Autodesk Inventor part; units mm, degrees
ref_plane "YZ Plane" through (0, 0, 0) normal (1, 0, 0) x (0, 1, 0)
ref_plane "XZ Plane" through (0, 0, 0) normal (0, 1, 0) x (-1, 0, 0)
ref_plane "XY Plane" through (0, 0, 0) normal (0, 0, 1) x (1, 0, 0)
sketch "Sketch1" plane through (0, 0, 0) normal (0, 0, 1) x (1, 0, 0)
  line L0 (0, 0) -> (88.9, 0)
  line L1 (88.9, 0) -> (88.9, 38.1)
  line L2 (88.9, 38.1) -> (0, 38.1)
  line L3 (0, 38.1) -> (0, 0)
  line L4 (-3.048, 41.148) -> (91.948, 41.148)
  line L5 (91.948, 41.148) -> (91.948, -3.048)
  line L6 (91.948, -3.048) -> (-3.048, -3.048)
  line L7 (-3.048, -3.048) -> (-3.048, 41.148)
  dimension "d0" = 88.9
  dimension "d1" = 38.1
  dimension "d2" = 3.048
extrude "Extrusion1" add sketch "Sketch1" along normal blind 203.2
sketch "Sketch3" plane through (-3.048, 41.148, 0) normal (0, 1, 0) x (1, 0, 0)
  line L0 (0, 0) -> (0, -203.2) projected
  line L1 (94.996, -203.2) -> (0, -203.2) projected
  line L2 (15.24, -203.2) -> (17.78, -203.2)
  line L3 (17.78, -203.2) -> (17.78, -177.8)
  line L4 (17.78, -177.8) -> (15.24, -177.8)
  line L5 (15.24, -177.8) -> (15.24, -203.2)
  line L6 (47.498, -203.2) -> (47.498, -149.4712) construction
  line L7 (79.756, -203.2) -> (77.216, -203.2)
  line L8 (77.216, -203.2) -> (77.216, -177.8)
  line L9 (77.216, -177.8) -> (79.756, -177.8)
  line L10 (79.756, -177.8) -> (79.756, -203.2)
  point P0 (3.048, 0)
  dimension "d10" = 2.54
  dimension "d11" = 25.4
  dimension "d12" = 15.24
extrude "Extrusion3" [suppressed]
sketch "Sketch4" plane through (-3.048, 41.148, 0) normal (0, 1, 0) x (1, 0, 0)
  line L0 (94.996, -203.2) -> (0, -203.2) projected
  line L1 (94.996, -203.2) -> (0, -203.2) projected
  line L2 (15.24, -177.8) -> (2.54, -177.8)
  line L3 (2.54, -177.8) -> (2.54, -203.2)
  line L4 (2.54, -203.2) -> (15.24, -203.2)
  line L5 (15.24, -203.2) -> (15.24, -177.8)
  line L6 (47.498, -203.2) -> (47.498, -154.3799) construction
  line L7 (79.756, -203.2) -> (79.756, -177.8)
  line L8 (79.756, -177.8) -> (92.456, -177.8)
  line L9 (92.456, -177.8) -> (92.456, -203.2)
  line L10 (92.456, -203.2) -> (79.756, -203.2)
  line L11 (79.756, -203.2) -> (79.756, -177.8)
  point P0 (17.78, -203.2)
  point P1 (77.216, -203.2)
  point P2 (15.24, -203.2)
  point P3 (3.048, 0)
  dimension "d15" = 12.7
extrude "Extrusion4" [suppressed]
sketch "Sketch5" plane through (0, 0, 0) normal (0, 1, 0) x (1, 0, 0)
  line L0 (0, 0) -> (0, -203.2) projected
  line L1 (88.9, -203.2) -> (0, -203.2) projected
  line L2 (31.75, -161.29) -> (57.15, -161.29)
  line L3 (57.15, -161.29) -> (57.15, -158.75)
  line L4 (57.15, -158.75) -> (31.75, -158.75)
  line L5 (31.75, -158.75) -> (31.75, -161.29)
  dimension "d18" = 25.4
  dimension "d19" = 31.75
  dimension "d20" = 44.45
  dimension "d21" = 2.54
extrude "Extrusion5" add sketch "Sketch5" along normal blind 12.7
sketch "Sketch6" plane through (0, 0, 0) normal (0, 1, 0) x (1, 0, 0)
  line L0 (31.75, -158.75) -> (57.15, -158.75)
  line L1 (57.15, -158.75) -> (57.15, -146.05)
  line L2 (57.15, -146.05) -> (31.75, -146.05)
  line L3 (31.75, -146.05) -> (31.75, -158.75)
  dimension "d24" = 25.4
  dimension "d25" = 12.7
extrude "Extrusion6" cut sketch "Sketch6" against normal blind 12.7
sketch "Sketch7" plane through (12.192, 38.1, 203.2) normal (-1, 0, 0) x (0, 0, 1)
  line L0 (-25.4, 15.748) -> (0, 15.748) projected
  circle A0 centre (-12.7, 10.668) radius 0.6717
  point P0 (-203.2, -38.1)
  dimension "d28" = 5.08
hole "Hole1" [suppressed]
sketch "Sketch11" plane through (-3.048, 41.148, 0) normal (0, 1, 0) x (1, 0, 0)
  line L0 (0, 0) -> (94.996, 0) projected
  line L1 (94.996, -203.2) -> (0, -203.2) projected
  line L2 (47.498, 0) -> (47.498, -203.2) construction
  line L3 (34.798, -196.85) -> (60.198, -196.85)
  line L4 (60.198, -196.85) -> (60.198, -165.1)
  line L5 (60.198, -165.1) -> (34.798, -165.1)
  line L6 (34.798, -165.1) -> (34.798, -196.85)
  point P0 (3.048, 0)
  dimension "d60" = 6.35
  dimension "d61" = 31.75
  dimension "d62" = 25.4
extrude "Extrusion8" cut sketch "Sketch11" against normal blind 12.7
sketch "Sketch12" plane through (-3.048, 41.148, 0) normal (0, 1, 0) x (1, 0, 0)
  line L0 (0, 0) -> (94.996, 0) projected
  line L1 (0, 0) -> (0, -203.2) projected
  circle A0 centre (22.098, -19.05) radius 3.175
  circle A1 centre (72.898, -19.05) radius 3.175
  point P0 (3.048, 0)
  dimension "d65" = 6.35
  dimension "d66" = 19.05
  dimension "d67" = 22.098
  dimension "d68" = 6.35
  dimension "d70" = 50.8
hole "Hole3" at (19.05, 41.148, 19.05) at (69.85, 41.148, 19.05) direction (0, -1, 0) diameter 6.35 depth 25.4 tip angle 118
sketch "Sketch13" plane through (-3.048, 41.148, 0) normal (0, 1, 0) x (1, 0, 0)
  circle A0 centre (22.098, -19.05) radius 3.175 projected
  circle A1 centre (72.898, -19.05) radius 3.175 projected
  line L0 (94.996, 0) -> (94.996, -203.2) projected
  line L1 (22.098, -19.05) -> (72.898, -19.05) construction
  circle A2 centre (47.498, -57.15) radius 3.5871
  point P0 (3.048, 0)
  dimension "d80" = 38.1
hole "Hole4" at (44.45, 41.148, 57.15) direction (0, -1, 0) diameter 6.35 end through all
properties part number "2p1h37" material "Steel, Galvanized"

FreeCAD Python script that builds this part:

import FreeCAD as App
import Part
import Sketcher

V = App.Vector
Q = App.Units.Quantity


def add_polygon(sketch, points):
    """Adds a closed chain of lines whose ends are joined by coincident constraints."""
    first, n = sketch.GeometryCount, len(points)
    for a, b in zip(points, points[1:] + points[:1]):
        sketch.addGeometry(Part.LineSegment(App.Vector(*a, 0), App.Vector(*b, 0)), False)
    for i in range(n):
        sketch.addConstraint(Sketcher.Constraint("Coincident", first + i, 2, first + (i + 1) % n, 1))

doc = App.newDocument("Part")
body = doc.addObject("PartDesign::Body", "Body")

sketch1 = body.newObject("Sketcher::SketchObject", "Sketch")
sketch1.AttachmentSupport = (doc.getObject("XY_Plane"), [""])
sketch1.MapMode = "FlatFace"
add_polygon(sketch1, [(92, 41), (-3, 41), (-3, -3), (92, -3)])
add_polygon(sketch1, [(89, 0), (0, 0), (0, 38), (89, 38)])
sketch1.addConstraint([
    Sketcher.Constraint("Horizontal", 0),
    Sketcher.Constraint("Vertical", 1),
    Sketcher.Constraint("Horizontal", 2),
    Sketcher.Constraint("Vertical", 3),
    Sketcher.Constraint("Horizontal", 4),
    Sketcher.Constraint("Vertical", 5),
    Sketcher.Constraint("Horizontal", 6),
    Sketcher.Constraint("Vertical", 7),
    Sketcher.Constraint("Coincident", 4, 2, -1, 1),
    Sketcher.Constraint("DistanceX", 4, 2, 4, 1, Q("3.5 in")),
    Sketcher.Constraint("DistanceY", 5, 1, 5, 2, Q("1.5 in")),
    Sketcher.Constraint("DistanceX", 0, 2, -1, 1, Q("0.12 in")),
    Sketcher.Constraint("DistanceY", 1, 2, -1, 1, Q("0.12 in")),
    Sketcher.Constraint("DistanceY", 5, 2, 0, 2, Q("0.12 in")),
    Sketcher.Constraint("DistanceX", 6, 2, 3, 2, Q("0.12 in")),
])
pad1 = body.newObject("PartDesign::Pad", "Pad")
pad1.Profile = sketch1
pad1.Length = Q("8 in")

sketch2 = body.newObject("Sketcher::SketchObject", "Sketch001")
sketch2.AttachmentSupport = (doc.getObject("XZ_Plane"), [""])
sketch2.MapMode = "FlatFace"
add_polygon(sketch2, [(31.8, 158.8), (31.8, 161.3), (57.1, 161.3), (57.1, 158.8)])
sketch2.addConstraint([
    Sketcher.Constraint("Vertical", 0),
    Sketcher.Constraint("Horizontal", 1),
    Sketcher.Constraint("Vertical", 2),
    Sketcher.Constraint("Horizontal", 3),
    Sketcher.Constraint("DistanceX", 1, 1, 1, 2, Q("1 in")),
    Sketcher.Constraint("DistanceY", 0, 1, 0, 2, Q("0.1 in")),
    Sketcher.Constraint("DistanceX", -1, 1, 0, 2, Q("1.25 in")),
    Sketcher.Constraint("DistanceY", -1, 1, 0, 2, Q("6.35 in")),
])
pad2 = body.newObject("PartDesign::Pad", "Pad001")
pad2.Profile = sketch2
pad2.Length = Q("0.5 in")
pad2.Reversed = True

sketch3 = body.newObject("Sketcher::SketchObject", "Sketch002")
sketch3.AttachmentSupport = (doc.getObject("XZ_Plane"), [""])
sketch3.MapMode = "FlatFace"
add_polygon(sketch3, [(32, 146), (32, 159), (57, 159), (57, 146)])
sketch3.addConstraint([
    Sketcher.Constraint("Vertical", 0),
    Sketcher.Constraint("Horizontal", 1),
    Sketcher.Constraint("Vertical", 2),
    Sketcher.Constraint("Horizontal", 3),
    Sketcher.Constraint("DistanceX", 1, 1, 1, 2, Q("1 in")),
    Sketcher.Constraint("DistanceY", 0, 1, 0, 2, Q("0.5 in")),
    Sketcher.Constraint("DistanceX", -1, 1, 0, 2, Q("1.25 in")),
    Sketcher.Constraint("DistanceY", -1, 1, 0, 2, Q("6.25 in")),
])
pocket1 = body.newObject("PartDesign::Pocket", "Pocket")
pocket1.Profile = sketch3
pocket1.Length = Q("0.5 in")
pocket1.Reversed = True

sketch4 = body.newObject("Sketcher::SketchObject", "Sketch003")
sketch4.AttachmentSupport = (doc.getObject("XZ_Plane"), [""])
sketch4.MapMode = "FlatFace"
sketch4.AttachmentOffset = App.Placement(V(0, 0, -1.62 * 25.4), App.Rotation())
add_polygon(sketch4, [(32, 165), (32, 197), (57, 197), (57, 165)])
sketch4.addConstraint([
    Sketcher.Constraint("Vertical", 0),
    Sketcher.Constraint("Horizontal", 1),
    Sketcher.Constraint("Vertical", 2),
    Sketcher.Constraint("Horizontal", 3),
    Sketcher.Constraint("DistanceX", 1, 1, 1, 2, Q("1 in")),
    Sketcher.Constraint("DistanceY", 0, 1, 0, 2, Q("1.25 in")),
    Sketcher.Constraint("DistanceX", -1, 1, 0, 2, Q("1.25 in")),
    Sketcher.Constraint("DistanceY", -1, 1, 2, 2, Q("6.5 in")),
])
pocket2 = body.newObject("PartDesign::Pocket", "Pocket001")
pocket2.Profile = sketch4
pocket2.Length = Q("0.5 in")
pocket2.Reversed = True

sketch5 = body.newObject("Sketcher::SketchObject", "Sketch004")
sketch5.AttachmentSupport = (doc.getObject("XZ_Plane"), [""])
sketch5.MapMode = "FlatFace"
sketch5.AttachmentOffset = App.Placement(V(0, 0, -1.62 * 25.4), App.Rotation())
sketch5.addGeometry([
    Part.Circle(V(19.1, 19.1, 0), V(0, 0, 1), 3.2),
    Part.Circle(V(69.8, 19.1, 0), V(0, 0, 1), 3.2),
], False)
sketch5.addConstraint([
    Sketcher.Constraint("Equal", 0, 1),
    Sketcher.Constraint("Horizontal", 0, 3, 1, 3),
    Sketcher.Constraint("Diameter", 0, Q("0.25 in")),
    Sketcher.Constraint("DistanceX", 0, 3, 1, 3, Q("2 in")),
    Sketcher.Constraint("DistanceX", -1, 1, 0, 3, Q("0.75 in")),
    Sketcher.Constraint("DistanceY", -1, 1, 0, 3, Q("0.75 in")),
])
doc.recompute()
hole = body.newObject("PartDesign::Hole", "Hole")
hole.Profile = sketch5
hole.ThreadType = "None"
hole.Diameter = Q("0.25 in")
hole.DepthType = "Dimension"
hole.Depth = Q("1 in")
hole.DrillPoint = "Angled"
hole.DrillPointAngle = 118
hole.Reversed = True

sketch6 = body.newObject("Sketcher::SketchObject", "Sketch005")
sketch6.AttachmentSupport = (doc.getObject("XZ_Plane"), [""])
sketch6.MapMode = "FlatFace"
sketch6.AttachmentOffset = App.Placement(V(0, 0, -1.62 * 25.4), App.Rotation())
sketch6.addGeometry(Part.Circle(V(44.5, 57.1, 0), V(0, 0, 1), 3.2), False)
sketch6.addConstraint([
    Sketcher.Constraint("Diameter", 0, Q("0.25 in")),
    Sketcher.Constraint("DistanceX", -1, 1, 0, 3, Q("1.75 in")),
    Sketcher.Constraint("DistanceY", -1, 1, 0, 3, Q("2.25 in")),
])
doc.recompute()
hole2 = body.newObject("PartDesign::Hole", "Hole001")
hole2.Profile = sketch6
hole2.ThreadType = "None"
hole2.Diameter = Q("0.25 in")
hole2.DepthType = "ThroughAll"
hole2.Reversed = True

doc.recompute()
